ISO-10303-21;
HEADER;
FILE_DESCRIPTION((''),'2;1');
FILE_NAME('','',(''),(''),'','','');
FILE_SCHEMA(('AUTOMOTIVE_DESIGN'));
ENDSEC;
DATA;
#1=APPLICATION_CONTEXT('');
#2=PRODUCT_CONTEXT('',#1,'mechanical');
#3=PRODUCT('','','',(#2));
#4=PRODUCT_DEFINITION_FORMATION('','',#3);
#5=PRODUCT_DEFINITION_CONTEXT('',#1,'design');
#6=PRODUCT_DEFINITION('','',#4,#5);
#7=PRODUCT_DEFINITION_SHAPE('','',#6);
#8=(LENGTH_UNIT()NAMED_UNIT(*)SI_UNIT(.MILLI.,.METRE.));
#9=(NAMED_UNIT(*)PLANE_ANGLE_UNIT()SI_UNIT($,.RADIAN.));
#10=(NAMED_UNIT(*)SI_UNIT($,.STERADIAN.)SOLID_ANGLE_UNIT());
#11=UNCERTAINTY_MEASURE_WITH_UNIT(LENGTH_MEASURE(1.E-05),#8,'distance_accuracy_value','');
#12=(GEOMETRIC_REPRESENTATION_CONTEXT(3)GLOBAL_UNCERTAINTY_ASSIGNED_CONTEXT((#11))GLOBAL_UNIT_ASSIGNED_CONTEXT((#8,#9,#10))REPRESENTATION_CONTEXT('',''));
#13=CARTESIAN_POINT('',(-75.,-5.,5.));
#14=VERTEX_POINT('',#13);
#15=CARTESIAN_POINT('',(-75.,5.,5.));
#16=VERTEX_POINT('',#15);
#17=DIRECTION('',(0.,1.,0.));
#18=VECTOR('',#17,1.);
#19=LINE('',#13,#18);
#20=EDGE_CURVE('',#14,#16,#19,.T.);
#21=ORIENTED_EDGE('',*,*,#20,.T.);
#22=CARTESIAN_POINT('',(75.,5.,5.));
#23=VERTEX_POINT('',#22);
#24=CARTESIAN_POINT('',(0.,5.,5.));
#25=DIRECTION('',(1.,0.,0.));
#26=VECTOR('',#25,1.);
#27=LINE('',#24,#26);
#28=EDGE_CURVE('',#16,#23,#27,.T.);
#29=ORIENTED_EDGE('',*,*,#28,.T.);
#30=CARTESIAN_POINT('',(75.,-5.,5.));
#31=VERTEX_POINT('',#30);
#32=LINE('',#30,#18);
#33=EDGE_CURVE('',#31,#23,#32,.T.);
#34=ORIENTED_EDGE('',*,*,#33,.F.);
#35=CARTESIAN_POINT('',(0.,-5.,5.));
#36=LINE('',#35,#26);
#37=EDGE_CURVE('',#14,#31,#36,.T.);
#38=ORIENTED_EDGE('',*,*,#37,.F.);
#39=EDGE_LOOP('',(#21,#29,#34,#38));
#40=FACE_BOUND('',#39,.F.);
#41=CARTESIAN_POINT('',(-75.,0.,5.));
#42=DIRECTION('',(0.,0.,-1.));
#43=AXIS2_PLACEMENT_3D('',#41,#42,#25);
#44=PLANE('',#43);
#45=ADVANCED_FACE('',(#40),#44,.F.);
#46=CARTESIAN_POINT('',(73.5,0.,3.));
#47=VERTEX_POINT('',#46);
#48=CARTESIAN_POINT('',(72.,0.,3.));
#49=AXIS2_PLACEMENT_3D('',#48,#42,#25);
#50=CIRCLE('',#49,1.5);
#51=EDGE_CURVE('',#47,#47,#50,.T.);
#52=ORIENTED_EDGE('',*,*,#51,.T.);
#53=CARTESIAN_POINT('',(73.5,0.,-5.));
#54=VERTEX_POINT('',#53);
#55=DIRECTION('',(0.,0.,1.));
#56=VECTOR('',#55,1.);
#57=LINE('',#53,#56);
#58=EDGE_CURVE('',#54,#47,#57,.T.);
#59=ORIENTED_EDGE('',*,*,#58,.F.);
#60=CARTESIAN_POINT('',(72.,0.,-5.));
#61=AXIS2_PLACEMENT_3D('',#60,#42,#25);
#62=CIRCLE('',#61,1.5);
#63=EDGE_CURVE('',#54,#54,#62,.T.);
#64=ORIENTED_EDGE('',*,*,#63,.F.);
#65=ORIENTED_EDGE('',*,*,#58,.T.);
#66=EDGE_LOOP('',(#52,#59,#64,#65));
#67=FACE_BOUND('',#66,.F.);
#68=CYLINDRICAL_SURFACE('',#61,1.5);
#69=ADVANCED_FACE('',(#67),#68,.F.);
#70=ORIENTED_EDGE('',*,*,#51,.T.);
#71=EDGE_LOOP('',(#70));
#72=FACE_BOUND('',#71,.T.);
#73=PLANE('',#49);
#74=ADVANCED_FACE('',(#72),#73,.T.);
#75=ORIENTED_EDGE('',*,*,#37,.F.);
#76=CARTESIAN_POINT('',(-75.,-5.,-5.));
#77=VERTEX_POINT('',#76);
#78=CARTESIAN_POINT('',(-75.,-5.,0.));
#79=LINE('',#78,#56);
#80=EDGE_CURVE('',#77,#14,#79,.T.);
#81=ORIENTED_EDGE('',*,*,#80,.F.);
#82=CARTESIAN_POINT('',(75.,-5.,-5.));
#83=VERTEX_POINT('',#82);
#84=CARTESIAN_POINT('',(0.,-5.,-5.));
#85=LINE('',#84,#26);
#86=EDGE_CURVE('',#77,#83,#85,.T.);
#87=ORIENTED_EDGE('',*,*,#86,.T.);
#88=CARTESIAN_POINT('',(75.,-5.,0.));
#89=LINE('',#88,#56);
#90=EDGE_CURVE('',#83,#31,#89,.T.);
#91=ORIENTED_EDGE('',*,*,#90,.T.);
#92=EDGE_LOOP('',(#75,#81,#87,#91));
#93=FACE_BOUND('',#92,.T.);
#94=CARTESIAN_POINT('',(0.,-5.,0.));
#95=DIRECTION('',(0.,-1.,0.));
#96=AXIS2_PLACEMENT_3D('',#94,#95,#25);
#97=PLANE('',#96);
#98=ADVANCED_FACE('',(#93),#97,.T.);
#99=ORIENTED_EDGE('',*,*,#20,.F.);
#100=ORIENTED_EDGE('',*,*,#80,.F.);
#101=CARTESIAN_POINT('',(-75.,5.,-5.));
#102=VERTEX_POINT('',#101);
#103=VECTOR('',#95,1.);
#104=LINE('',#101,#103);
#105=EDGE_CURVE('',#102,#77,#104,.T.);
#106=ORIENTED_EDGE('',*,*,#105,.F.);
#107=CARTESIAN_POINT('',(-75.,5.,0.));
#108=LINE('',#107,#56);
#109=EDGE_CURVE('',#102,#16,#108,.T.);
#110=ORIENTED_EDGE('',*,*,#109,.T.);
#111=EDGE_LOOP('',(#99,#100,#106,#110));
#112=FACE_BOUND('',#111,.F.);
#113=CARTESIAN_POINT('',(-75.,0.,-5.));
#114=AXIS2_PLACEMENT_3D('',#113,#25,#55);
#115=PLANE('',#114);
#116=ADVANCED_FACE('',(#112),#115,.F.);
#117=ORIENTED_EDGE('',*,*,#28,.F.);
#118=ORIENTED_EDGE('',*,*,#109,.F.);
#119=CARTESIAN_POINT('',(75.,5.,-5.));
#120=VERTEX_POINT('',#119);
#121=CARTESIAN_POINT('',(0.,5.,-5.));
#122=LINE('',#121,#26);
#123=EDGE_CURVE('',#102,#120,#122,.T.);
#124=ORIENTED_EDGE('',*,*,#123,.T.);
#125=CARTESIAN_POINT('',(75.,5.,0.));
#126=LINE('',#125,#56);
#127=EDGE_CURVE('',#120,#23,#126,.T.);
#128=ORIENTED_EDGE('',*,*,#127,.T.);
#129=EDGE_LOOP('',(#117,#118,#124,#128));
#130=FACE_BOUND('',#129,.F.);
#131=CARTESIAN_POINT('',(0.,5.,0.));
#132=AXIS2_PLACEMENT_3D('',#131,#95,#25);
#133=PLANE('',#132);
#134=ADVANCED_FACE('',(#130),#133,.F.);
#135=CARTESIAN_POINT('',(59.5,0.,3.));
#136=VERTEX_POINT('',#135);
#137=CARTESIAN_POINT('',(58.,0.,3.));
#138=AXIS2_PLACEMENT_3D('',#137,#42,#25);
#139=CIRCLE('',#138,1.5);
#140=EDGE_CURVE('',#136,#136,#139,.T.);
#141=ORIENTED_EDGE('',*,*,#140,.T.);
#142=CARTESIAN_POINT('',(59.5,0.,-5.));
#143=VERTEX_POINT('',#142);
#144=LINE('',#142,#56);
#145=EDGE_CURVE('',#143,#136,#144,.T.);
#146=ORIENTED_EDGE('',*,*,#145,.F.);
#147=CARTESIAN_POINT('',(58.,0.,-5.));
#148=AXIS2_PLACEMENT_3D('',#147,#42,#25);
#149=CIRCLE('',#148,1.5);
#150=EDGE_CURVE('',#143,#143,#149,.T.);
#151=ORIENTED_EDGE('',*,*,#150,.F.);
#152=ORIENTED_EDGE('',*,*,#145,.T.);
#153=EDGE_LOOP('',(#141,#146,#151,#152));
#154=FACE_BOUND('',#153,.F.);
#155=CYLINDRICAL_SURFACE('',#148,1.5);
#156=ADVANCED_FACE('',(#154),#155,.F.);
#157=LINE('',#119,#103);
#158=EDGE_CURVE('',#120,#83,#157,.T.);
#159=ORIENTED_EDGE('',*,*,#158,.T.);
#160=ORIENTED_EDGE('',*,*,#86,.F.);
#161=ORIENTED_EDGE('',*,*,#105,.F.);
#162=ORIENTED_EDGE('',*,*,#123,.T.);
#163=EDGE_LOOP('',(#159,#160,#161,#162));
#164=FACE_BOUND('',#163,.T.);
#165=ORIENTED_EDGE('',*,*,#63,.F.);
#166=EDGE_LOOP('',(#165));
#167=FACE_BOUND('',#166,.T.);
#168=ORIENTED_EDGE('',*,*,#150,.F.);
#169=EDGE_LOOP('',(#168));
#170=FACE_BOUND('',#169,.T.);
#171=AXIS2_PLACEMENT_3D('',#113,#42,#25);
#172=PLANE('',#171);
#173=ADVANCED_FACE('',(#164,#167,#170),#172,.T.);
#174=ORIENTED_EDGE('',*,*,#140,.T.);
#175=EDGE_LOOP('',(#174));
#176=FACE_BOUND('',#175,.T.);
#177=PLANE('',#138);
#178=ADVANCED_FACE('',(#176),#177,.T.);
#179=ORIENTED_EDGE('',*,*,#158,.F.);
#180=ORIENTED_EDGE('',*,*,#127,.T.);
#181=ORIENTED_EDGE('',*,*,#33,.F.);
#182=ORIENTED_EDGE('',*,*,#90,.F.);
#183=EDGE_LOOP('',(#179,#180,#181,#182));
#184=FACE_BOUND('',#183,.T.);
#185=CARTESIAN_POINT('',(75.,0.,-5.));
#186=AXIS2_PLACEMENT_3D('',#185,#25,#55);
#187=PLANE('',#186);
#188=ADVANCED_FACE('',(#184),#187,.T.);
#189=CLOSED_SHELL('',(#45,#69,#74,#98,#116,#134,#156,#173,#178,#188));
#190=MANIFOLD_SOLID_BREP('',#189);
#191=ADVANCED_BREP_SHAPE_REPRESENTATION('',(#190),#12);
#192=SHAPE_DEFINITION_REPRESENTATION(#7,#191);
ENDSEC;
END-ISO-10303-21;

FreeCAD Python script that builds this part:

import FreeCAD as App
import Part
import Sketcher

V = App.Vector


def add_polygon(sketch, points):
    """Adds a closed chain of lines whose ends are joined by coincident constraints."""
    first, n = sketch.GeometryCount, len(points)
    for a, b in zip(points, points[1:] + points[:1]):
        sketch.addGeometry(Part.LineSegment(App.Vector(*a, 0), App.Vector(*b, 0)), False)
    for i in range(n):
        sketch.addConstraint(Sketcher.Constraint("Coincident", first + i, 2, first + (i + 1) % n, 1))

doc = App.newDocument("Part")
body = doc.addObject("PartDesign::Body", "Body")

sketch1 = body.newObject("Sketcher::SketchObject", "Sketch")
sketch1.AttachmentSupport = (doc.getObject("XZ_Plane"), [""])
sketch1.MapMode = "FlatFace"
add_polygon(sketch1, [(-75, 5), (-75, -5), (75, -5), (75, 5)])
sketch1.addConstraint([
    Sketcher.Constraint("Vertical", 0),
    Sketcher.Constraint("Horizontal", 1),
    Sketcher.Constraint("Vertical", 2),
    Sketcher.Constraint("Horizontal", 3),
    Sketcher.Constraint("Symmetric", 0, 2, 2, 2, -1, 1),
    Sketcher.Constraint("DistanceX", 1, 1, 1, 2, 150.0),
    Sketcher.Constraint("DistanceY", 0, 2, 0, 1, 10.0),
])
pad1 = body.newObject("PartDesign::Pad", "Pad")
pad1.Profile = sketch1
pad1.Length = 10
pad1.Midplane = True

sketch2 = body.newObject("Sketcher::SketchObject", "Sketch001")
sketch2.AttachmentSupport = (doc.getObject("XY_Plane"), [""])
sketch2.MapMode = "FlatFace"
sketch2.AttachmentOffset = App.Placement(V(0, 0, -5), App.Rotation())
sketch2.addGeometry([
    Part.Circle(V(72, 0, 0), V(0, 0, 1), 1.5),
    Part.Circle(V(58, 0, 0), V(0, 0, 1), 1.5),
], False)
sketch2.addConstraint([
    Sketcher.Constraint("Equal", 0, 1),
    Sketcher.Constraint("PointOnObject", 0, 3, -1),
    Sketcher.Constraint("PointOnObject", 1, 3, -1),
    Sketcher.Constraint("Diameter", 0, 3.0),
    Sketcher.Constraint("DistanceX", -1, 1, 0, 3, 72.0),
    Sketcher.Constraint("DistanceX", -1, 1, 1, 3, 58.0),
])
pocket1 = body.newObject("PartDesign::Pocket", "Pocket")
pocket1.Profile = sketch2
pocket1.Length = 8
pocket1.Reversed = True

doc.recompute()
